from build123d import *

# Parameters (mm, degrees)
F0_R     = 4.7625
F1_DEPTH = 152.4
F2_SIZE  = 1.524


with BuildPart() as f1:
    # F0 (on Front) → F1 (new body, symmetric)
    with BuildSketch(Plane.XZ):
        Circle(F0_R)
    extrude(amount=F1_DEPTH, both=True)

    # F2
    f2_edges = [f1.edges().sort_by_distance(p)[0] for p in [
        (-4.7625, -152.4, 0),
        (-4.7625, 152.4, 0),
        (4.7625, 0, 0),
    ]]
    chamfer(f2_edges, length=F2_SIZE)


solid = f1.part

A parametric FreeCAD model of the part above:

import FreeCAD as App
import Part
import Sketcher

V = App.Vector
Q = App.Units.Quantity

doc = App.newDocument("Part")
body = doc.addObject("PartDesign::Body", "Body")

sketch1 = body.newObject("Sketcher::SketchObject", "Sketch")
sketch1.AttachmentSupport = (doc.getObject("XZ_Plane"), [""])
sketch1.MapMode = "FlatFace"
sketch1.addGeometry(Part.Circle(V(0, 0, 0), V(0, 0, 1), 4.8), False)
sketch1.addConstraint([
    Sketcher.Constraint("Coincident", 0, 3, -1, 1),
    Sketcher.Constraint("Diameter", 0, Q("0.375 in")),
])
pad1 = body.newObject("PartDesign::Pad", "Pad")
pad1.Profile = sketch1
pad1.Length = Q("12 in")
pad1.Midplane = True
doc.recompute()

chamfer = body.newObject("PartDesign::Chamfer", "Chamfer")
chamfer.Base = (pad1, ["Edge1"])
chamfer.UseAllEdges = True
chamfer.Size = Q("0.06 in")

doc.recompute()
